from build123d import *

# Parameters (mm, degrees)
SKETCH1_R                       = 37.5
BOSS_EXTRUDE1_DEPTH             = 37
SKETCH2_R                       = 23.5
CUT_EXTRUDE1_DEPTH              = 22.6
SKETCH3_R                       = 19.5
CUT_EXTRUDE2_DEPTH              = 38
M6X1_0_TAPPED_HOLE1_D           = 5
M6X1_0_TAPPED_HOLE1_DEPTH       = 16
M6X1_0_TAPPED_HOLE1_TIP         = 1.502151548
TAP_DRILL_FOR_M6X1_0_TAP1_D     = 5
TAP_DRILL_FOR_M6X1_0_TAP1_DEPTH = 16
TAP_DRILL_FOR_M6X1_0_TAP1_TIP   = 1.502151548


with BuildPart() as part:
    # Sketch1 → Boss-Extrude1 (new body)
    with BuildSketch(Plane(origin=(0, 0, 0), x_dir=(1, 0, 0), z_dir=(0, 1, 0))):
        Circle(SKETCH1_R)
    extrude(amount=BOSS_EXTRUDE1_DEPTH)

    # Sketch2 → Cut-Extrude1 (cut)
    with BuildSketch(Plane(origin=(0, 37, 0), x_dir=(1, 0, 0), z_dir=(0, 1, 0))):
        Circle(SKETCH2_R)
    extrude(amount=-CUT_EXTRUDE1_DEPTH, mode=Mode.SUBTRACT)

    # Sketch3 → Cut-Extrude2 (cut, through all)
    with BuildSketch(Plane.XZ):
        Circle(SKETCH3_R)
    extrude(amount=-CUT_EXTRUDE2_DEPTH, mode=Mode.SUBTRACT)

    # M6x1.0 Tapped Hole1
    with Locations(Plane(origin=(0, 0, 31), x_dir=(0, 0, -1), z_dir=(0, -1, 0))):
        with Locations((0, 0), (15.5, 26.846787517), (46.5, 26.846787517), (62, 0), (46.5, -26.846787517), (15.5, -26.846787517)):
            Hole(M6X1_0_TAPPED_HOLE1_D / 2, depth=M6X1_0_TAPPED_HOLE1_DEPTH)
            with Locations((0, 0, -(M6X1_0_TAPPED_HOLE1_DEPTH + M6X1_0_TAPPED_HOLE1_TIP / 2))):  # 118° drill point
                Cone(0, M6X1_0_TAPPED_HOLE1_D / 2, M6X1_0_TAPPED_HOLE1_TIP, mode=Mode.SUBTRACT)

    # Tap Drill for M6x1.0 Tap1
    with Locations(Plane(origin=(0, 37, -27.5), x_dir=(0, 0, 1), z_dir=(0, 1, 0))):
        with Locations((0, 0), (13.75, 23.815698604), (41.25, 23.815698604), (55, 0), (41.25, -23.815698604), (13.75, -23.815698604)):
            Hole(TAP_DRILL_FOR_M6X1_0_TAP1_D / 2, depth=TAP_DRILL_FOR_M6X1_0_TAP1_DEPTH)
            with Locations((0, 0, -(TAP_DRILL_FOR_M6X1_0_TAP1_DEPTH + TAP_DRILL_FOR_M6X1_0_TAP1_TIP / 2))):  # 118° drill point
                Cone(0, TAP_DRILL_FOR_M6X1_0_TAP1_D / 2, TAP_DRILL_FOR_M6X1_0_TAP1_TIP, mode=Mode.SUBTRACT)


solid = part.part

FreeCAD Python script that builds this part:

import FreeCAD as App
import Part
import Sketcher
Q = App.Units.Quantity

doc = App.newDocument("Part")
body = doc.addObject("PartDesign::Body", "Body")

# Sketch on XZ plane
sketch1 = body.newObject("Sketcher::SketchObject", "Sketch")
sketch1.AttachmentSupport = (doc.getObject("XZ_Plane"), [""])
sketch1.MapMode = "FlatFace"
sketch1.addGeometry(Part.Circle(App.Vector(0, 0, 0), App.Vector(0, 0, 1), 38), False)
sketch1.addConstraint([
    Sketcher.Constraint("Coincident", 0, 3, -1, 1),
    Sketcher.Constraint("Diameter", 0, Q("75 mm")),
])
pad1 = body.newObject("PartDesign::Pad", "Pad")
pad1.Profile = sketch1
pad1.Length = 37
pad1.Reversed = True

# Sketch on XZ plane
sketch2 = body.newObject("Sketcher::SketchObject", "Sketch001")
sketch2.AttachmentSupport = (doc.getObject("XZ_Plane"), [""])
sketch2.MapMode = "FlatFace"
sketch2.AttachmentOffset = App.Placement(App.Vector(0, 0, -37), App.Rotation())
sketch2.addGeometry(Part.Circle(App.Vector(0, 0, 0), App.Vector(0, 0, 1), 24), False)
sketch2.addConstraint([
    Sketcher.Constraint("Coincident", 0, 3, -1, 1),
    Sketcher.Constraint("Diameter", 0, Q("47 mm")),
])
pocket1 = body.newObject("PartDesign::Pocket", "Pocket")
pocket1.Profile = sketch2
pocket1.Length = 22.6
pocket1.Reversed = True

# Sketch on XZ plane
sketch3 = body.newObject("Sketcher::SketchObject", "Sketch002")
sketch3.AttachmentSupport = (doc.getObject("XZ_Plane"), [""])
sketch3.MapMode = "FlatFace"
sketch3.addGeometry(Part.Circle(App.Vector(0, 0, 0), App.Vector(0, 0, 1), 20), False)
sketch3.addConstraint([
    Sketcher.Constraint("Coincident", 0, 3, -1, 1),
    Sketcher.Constraint("Diameter", 0, Q("39 mm")),
])
pocket2 = body.newObject("PartDesign::Pocket", "Pocket001")
pocket2.Profile = sketch3
pocket2.Type = "ThroughAll"

# Sketch on XZ plane
sketch4 = body.newObject("Sketcher::SketchObject", "Sketch003")
sketch4.AttachmentSupport = (doc.getObject("XZ_Plane"), [""])
sketch4.MapMode = "FlatFace"
sketch4.addGeometry([
    Part.Circle(App.Vector(0, 31, 0), App.Vector(0, 0, 1), 2.5),  # 0
    Part.Circle(App.Vector(26.8, 15.5, 0), App.Vector(0, 0, 1), 2.5),  # 1
    Part.Circle(App.Vector(26.8, -15.5, 0), App.Vector(0, 0, 1), 2.5),  # 2
    Part.Circle(App.Vector(0, -31, 0), App.Vector(0, 0, 1), 2.5),  # 3
    Part.Circle(App.Vector(-26.8, -15.5, 0), App.Vector(0, 0, 1), 2.5),  # 4
    Part.Circle(App.Vector(-26.8, 15.5, 0), App.Vector(0, 0, 1), 2.5),  # 5
], False)
sketch4.addConstraint([
    Sketcher.Constraint("Equal", 0, 1),
    Sketcher.Constraint("Equal", 1, 2),
    Sketcher.Constraint("Equal", 2, 3),
    Sketcher.Constraint("Equal", 3, 4),
    Sketcher.Constraint("Equal", 4, 5),
    Sketcher.Constraint("Symmetric", 0, 3, 3, 3, -1, 1),
    Sketcher.Constraint("Symmetric", 1, 3, 4, 3, -1, 1),
    Sketcher.Constraint("Symmetric", 2, 3, 5, 3, -1, 1),
    Sketcher.Constraint("Symmetric", 2, 3, 4, 3, -2),
    Sketcher.Constraint("PointOnObject", 0, 3, -2),
    Sketcher.Constraint("Diameter", 0, Q("5 mm")),
    Sketcher.Constraint("DistanceY", -1, 1, 0, 3, Q("31 mm")),
    Sketcher.Constraint("DistanceY", 2, 3, 1, 3, Q("31 mm")),
    Sketcher.Constraint("DistanceX", -1, 1, 1, 3, Q("26.846788 mm")),
])
doc.recompute()
hole = body.newObject("PartDesign::Hole", "Hole")
hole.Profile = sketch4
hole.ThreadType = "None"
hole.Diameter = 5
hole.DepthType = "Dimension"
hole.Depth = 16
hole.DrillPoint = "Angled"
hole.DrillPointAngle = 118

# Sketch on XZ plane
sketch5 = body.newObject("Sketcher::SketchObject", "Sketch004")
sketch5.AttachmentSupport = (doc.getObject("XZ_Plane"), [""])
sketch5.MapMode = "FlatFace"
sketch5.AttachmentOffset = App.Placement(App.Vector(0, 0, -37), App.Rotation())
sketch5.addGeometry([
    Part.Circle(App.Vector(0, -27.5, 0), App.Vector(0, 0, 1), 2.5),  # 0
    Part.Circle(App.Vector(23.8, -13.8, 0), App.Vector(0, 0, 1), 2.5),  # 1
    Part.Circle(App.Vector(23.8, 13.8, 0), App.Vector(0, 0, 1), 2.5),  # 2
    Part.Circle(App.Vector(0, 27.5, 0), App.Vector(0, 0, 1), 2.5),  # 3
    Part.Circle(App.Vector(-23.8, 13.8, 0), App.Vector(0, 0, 1), 2.5),  # 4
    Part.Circle(App.Vector(-23.8, -13.8, 0), App.Vector(0, 0, 1), 2.5),  # 5
], False)
sketch5.addConstraint([
    Sketcher.Constraint("Equal", 0, 1),
    Sketcher.Constraint("Equal", 1, 2),
    Sketcher.Constraint("Equal", 2, 3),
    Sketcher.Constraint("Equal", 3, 4),
    Sketcher.Constraint("Equal", 4, 5),
    Sketcher.Constraint("Symmetric", 0, 3, 3, 3, -1, 1),
    Sketcher.Constraint("Symmetric", 1, 3, 4, 3, -1, 1),
    Sketcher.Constraint("Symmetric", 2, 3, 5, 3, -1, 1),
    Sketcher.Constraint("Symmetric", 2, 3, 4, 3, -2),
    Sketcher.Constraint("PointOnObject", 0, 3, -2),
    Sketcher.Constraint("Diameter", 0, Q("5 mm")),
    Sketcher.Constraint("DistanceY", 0, 3, 3, 3, Q("55 mm")),
    Sketcher.Constraint("DistanceY", 1, 3, 2, 3, Q("27.5 mm")),
    Sketcher.Constraint("DistanceX", -1, 1, 1, 3, Q("23.815699 mm")),
])
doc.recompute()
hole2 = body.newObject("PartDesign::Hole", "Hole001")
hole2.Profile = sketch5
hole2.ThreadType = "None"
hole2.Diameter = 5
hole2.DepthType = "Dimension"
hole2.Depth = 16
hole2.DrillPoint = "Angled"
hole2.DrillPointAngle = 118
hole2.Reversed = True

doc.recompute()
